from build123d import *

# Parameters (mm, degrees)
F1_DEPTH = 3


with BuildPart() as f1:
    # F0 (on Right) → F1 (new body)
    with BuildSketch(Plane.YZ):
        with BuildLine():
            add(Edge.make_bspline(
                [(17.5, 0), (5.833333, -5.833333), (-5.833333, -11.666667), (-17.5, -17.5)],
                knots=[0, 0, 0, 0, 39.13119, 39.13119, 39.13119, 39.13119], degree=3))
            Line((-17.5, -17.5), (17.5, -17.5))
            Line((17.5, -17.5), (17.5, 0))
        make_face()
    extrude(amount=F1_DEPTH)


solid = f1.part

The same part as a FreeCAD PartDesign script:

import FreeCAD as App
import Part
import Sketcher

V = App.Vector

doc = App.newDocument("Part")
body = doc.addObject("PartDesign::Body", "Body")

sketch1 = body.newObject("Sketcher::SketchObject", "Sketch")
sketch1.AttachmentSupport = (doc.getObject("YZ_Plane"), [""])
sketch1.MapMode = "FlatFace"
sketch1.addGeometry(Part.BSplineCurve([V(17.5, 0, 0), V(5.833333, -5.833333, 0), V(-5.833333, -11.666667, 0), V(-17.5, -17.5, 0)], [4, 4], [0, 39.13119], False, 3, [1, 1, 1, 1], False), False)
sketch1.addGeometry(Part.LineSegment(V(-17.5, -17.5, 0), V(17.5, -17.5, 0)), False)
sketch1.addGeometry(Part.LineSegment(V(17.5, -17.5, 0), V(17.5, 0, 0)), False)
sketch1.addConstraint(Sketcher.Constraint("Block", 0))
sketch1.addConstraint(Sketcher.Constraint("Coincident", 0, 2, 1, 1))
sketch1.addConstraint(Sketcher.Constraint("Coincident", 1, 2, 2, 1))
sketch1.addConstraint(Sketcher.Constraint("Coincident", 2, 2, 0, 1))
sketch1.addConstraint(Sketcher.Constraint("Horizontal", 1))
sketch1.addConstraint(Sketcher.Constraint("Vertical", 2))
pad1 = body.newObject("PartDesign::Pad", "Pad")
pad1.Profile = sketch1
pad1.Length = 3

doc.recompute()
